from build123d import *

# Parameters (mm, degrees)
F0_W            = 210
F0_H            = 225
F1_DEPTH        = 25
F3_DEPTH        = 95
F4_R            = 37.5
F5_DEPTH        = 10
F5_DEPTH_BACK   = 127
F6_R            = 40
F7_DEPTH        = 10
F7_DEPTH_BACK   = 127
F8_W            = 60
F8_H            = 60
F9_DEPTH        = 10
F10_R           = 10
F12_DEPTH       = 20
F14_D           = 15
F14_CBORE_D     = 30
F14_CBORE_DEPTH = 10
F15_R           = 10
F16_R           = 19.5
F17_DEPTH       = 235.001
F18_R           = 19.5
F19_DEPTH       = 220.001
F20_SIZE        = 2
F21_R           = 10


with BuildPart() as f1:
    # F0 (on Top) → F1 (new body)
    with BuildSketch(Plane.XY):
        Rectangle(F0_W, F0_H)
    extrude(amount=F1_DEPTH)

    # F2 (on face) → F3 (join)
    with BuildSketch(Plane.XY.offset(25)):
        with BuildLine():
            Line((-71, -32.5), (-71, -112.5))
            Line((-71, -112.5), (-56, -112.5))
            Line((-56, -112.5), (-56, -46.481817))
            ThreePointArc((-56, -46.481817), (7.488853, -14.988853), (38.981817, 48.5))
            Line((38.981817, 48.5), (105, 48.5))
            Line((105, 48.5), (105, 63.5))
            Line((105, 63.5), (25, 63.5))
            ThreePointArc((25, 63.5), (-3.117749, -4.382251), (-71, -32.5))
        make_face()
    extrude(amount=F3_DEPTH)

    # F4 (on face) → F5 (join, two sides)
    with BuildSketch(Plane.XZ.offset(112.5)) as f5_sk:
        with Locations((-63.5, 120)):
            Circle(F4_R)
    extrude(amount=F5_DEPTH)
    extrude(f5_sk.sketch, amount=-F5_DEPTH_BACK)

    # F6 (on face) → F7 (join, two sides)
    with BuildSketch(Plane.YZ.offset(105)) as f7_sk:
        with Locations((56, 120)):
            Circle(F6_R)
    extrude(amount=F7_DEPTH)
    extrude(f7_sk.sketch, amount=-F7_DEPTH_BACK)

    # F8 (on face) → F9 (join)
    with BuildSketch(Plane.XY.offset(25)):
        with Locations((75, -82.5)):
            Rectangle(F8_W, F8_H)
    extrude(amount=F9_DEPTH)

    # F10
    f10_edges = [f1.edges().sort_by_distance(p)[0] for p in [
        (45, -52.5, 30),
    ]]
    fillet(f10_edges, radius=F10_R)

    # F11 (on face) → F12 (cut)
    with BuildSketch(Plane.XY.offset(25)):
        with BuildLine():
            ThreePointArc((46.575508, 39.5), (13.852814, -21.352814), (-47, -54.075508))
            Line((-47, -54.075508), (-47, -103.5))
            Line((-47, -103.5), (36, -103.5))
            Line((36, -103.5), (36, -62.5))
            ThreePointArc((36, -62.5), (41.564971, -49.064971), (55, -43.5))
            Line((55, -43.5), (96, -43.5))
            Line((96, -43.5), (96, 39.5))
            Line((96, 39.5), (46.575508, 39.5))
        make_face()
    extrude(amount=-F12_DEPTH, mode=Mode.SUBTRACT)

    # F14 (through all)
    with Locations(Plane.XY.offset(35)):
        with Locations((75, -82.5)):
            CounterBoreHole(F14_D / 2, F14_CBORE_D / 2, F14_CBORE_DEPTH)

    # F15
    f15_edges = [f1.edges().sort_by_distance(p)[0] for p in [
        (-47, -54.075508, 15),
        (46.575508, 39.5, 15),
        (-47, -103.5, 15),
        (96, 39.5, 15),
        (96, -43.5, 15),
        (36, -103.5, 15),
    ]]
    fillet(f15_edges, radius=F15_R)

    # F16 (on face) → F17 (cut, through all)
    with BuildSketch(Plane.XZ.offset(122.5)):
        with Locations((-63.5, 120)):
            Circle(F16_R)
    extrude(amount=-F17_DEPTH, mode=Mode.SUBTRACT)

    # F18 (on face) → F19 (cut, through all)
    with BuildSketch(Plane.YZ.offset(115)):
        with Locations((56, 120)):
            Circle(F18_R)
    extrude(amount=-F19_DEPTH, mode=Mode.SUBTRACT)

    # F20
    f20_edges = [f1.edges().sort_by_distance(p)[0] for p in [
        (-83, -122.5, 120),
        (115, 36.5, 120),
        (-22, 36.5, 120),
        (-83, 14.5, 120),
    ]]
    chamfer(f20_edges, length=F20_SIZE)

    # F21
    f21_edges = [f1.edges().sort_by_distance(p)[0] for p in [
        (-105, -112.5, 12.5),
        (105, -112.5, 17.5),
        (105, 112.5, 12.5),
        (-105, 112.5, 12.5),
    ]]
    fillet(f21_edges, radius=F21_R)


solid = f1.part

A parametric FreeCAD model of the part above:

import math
import FreeCAD as App
import Part
import Sketcher

V = App.Vector
Q = App.Units.Quantity


def edges_at(feature, points):
    """Names of the edges that pass closest to the given points."""
    edges = feature.Shape.Edges
    near = lambda p: min(range(len(edges)), key=lambda i: edges[i].distToShape(Part.Vertex(*p))[0])
    return sorted({f"Edge{near(p) + 1}" for p in points})


def add_polygon(sketch, points):
    """Adds a closed chain of lines whose ends are joined by coincident constraints."""
    first, n = sketch.GeometryCount, len(points)
    for a, b in zip(points, points[1:] + points[:1]):
        sketch.addGeometry(Part.LineSegment(App.Vector(*a, 0), App.Vector(*b, 0)), False)
    for i in range(n):
        sketch.addConstraint(Sketcher.Constraint("Coincident", first + i, 2, first + (i + 1) % n, 1))

doc = App.newDocument("Part")
params = doc.addObject("Spreadsheet::Sheet", "Params")
for row, (alias, value) in enumerate([
    ("sketch1_width", "210 mm"),
    ("sketch1_height", "225 mm"),
    ("pad1_length", "25 mm"),
    ("sketch2_radius", "111 mm"),
    ("sketch2_radius2", "96 mm"),
    ("sketch2_width", "15 mm"),
    ("sketch2_width2", "80 mm"),
    ("pad2_length", "95 mm"),
    ("sketch3_diameter", "75 mm"),
    ("pad3_length", "10 mm"),
    ("pad3_length2", "127 mm"),
    ("sketch4_diameter", "80 mm"),
    ("pad4_length", "10 mm"),
    ("pad4_length2", "127 mm"),
    ("sketch5_width", "60 mm"),
    ("pad5_length", "10 mm"),
    ("fillet_radius", "10 mm"),
    ("sketch6_radius", "120 mm"),
    ("sketch6_radius2", "18.999999 mm"),
    ("sketch6_width", "83 mm"),
    ("sketch6_width2", "41 mm"),
    ("pocket1_length", "20 mm"),
    ("sketch7_diameter", "15 mm"),
    ("hole_diameter", "15 mm"),
    ("hole_cbore_diameter", "30 mm"),
    ("hole_cbore_depth", "10 mm"),
    ("fillet2_radius", "10 mm"),
    ("sketch8_diameter", "39 mm"),
    ("sketch9_diameter", "39 mm"),
    ("chamfer_size", "2 mm"),
    ("fillet3_radius", "10 mm"),
], start=1):
    params.set(f"A{row}", alias)
    params.set(f"B{row}", "=" + value)
    params.setAlias(f"B{row}", alias)

body = doc.addObject("PartDesign::Body", "Body")

# Sketch on XY plane
sketch1 = doc.addObject("Sketcher::SketchObject", "Sketch")
body.addObject(sketch1)
sketch1.AttachmentSupport = (doc.XY_Plane, [""])
sketch1.MapMode = "FlatFace"
add_polygon(sketch1, [(-105, 112), (-105, -112), (105, -112), (105, 112)])  # lines 0-3
sketch1.addConstraint(Sketcher.Constraint("Vertical", 0))
sketch1.addConstraint(Sketcher.Constraint("Horizontal", 1))
sketch1.addConstraint(Sketcher.Constraint("Vertical", 2))
sketch1.addConstraint(Sketcher.Constraint("Horizontal", 3))
sketch1.addConstraint(Sketcher.Constraint("Symmetric", 0, 2, 2, 2, -1, 1))
sketch1.addConstraint(Sketcher.Constraint("DistanceX", 1, 1, 1, 2, Q("210 mm")))
sketch1.addConstraint(Sketcher.Constraint("DistanceY", 0, 2, 0, 1, Q("225 mm")))
sketch1.setExpression("Constraints[9]", "Params.sketch1_width")
sketch1.setExpression("Constraints[10]", "Params.sketch1_height")
pad1 = doc.addObject("PartDesign::Pad", "Pad")
body.addObject(pad1)
pad1.Profile = sketch1
pad1.setExpression("Length", "Params.pad1_length")

# Sketch on XY plane
sketch2 = doc.addObject("Sketcher::SketchObject", "Sketch001")
body.addObject(sketch2)
sketch2.AttachmentSupport = (doc.XY_Plane, [""])
sketch2.MapMode = "FlatFace"
sketch2.AttachmentOffset = App.Placement(V(0, 0, 25), App.Rotation())
sketch2.addGeometry(Part.LineSegment(V(-71, -32, 0), V(-71, -112, 0)), False)
sketch2.addGeometry(Part.LineSegment(V(-71, -112, 0), V(-56, -112, 0)), False)
sketch2.addGeometry(Part.LineSegment(V(-56, -112, 0), V(-56, -46, 0)), False)
sketch2.addGeometry(Part.ArcOfCircle(Part.Circle(V(-71, 63, 0), V(0, 0, 1), 111), math.radians(-82), math.radians(-8)), False)
sketch2.addGeometry(Part.LineSegment(V(39, 48, 0), V(105, 48, 0)), False)
sketch2.addGeometry(Part.LineSegment(V(105, 48, 0), V(105, 64, 0)), False)
sketch2.addGeometry(Part.LineSegment(V(105, 64, 0), V(25, 64, 0)), False)
sketch2.addGeometry(Part.ArcOfCircle(Part.Circle(V(-71, 63, 0), V(0, 0, 1), 96), math.radians(-90), math.radians(0)), False)
sketch2.addConstraint(Sketcher.Constraint("Coincident", 0, 2, 1, 1))
sketch2.addConstraint(Sketcher.Constraint("Coincident", 1, 2, 2, 1))
sketch2.addConstraint(Sketcher.Constraint("Coincident", 2, 2, 3, 1))
sketch2.addConstraint(Sketcher.Constraint("Coincident", 3, 2, 4, 1))
sketch2.addConstraint(Sketcher.Constraint("Coincident", 4, 2, 5, 1))
sketch2.addConstraint(Sketcher.Constraint("Coincident", 5, 2, 6, 1))
sketch2.addConstraint(Sketcher.Constraint("Coincident", 6, 2, 7, 2))
sketch2.addConstraint(Sketcher.Constraint("Coincident", 7, 1, 0, 1))
sketch2.addConstraint(Sketcher.Constraint("Vertical", 0))
sketch2.addConstraint(Sketcher.Constraint("Horizontal", 1))
sketch2.addConstraint(Sketcher.Constraint("Vertical", 2))
sketch2.addConstraint(Sketcher.Constraint("Horizontal", 4))
sketch2.addConstraint(Sketcher.Constraint("Vertical", 5))
sketch2.addConstraint(Sketcher.Constraint("Horizontal", 6))
sketch2.addConstraint(Sketcher.Constraint("Coincident", 7, 3, 3, 3))
sketch2.addConstraint(Sketcher.Constraint("Horizontal", 7, 3, 5, 2))
sketch2.addConstraint(Sketcher.Constraint("Vertical", 7, 3, 0, 2))
sketch2.addConstraint(Sketcher.Constraint("Equal", 6, 0))
sketch2.addConstraint(Sketcher.Constraint("Equal", 4, 2))
sketch2.addConstraint(Sketcher.Constraint("Radius", 3, Q("111 mm")))
sketch2.addConstraint(Sketcher.Constraint("Radius", 7, Q("96 mm")))
sketch2.addConstraint(Sketcher.Constraint("DistanceX", 1, 1, 1, 2, Q("15 mm")))
sketch2.addConstraint(Sketcher.Constraint("DistanceX", 6, 2, 6, 1, Q("80 mm")))
sketch2.addConstraint(Sketcher.Constraint("DistanceX", 3, 3, -1, 1, Q("71 mm")))
sketch2.addConstraint(Sketcher.Constraint("DistanceY", -1, 1, 3, 3, Q("63.5 mm")))
sketch2.setExpression("Constraints[19]", "Params.sketch2_radius")
sketch2.setExpression("Constraints[20]", "Params.sketch2_radius2")
sketch2.setExpression("Constraints[21]", "Params.sketch2_width")
sketch2.setExpression("Constraints[22]", "Params.sketch2_width2")
pad2 = doc.addObject("PartDesign::Pad", "Pad001")
body.addObject(pad2)
pad2.Profile = sketch2
pad2.setExpression("Length", "Params.pad2_length")

# Sketch on XZ plane
sketch3 = doc.addObject("Sketcher::SketchObject", "Sketch002")
body.addObject(sketch3)
sketch3.AttachmentSupport = (doc.XZ_Plane, [""])
sketch3.MapMode = "FlatFace"
sketch3.AttachmentOffset = App.Placement(V(0, 0, 112.5), App.Rotation())
sketch3.addGeometry(Part.Circle(V(-64, 120, 0), V(0, 0, 1), 38), False)
sketch3.addConstraint(Sketcher.Constraint("Diameter", 0, Q("75 mm")))
sketch3.addConstraint(Sketcher.Constraint("DistanceY", -1, 1, 0, 3, Q("120 mm")))
sketch3.addConstraint(Sketcher.Constraint("DistanceX", 0, 3, -1, 1, Q("63.5 mm")))
sketch3.setExpression("Constraints[0]", "Params.sketch3_diameter")
pad3 = doc.addObject("PartDesign::Pad", "Pad002")
body.addObject(pad3)
pad3.Profile = sketch3
pad3.Type = "TwoLengths"
pad3.setExpression("Length", "Params.pad3_length")
pad3.setExpression("Length2", "Params.pad3_length2")

# Sketch on YZ plane
sketch4 = doc.addObject("Sketcher::SketchObject", "Sketch003")
body.addObject(sketch4)
sketch4.AttachmentSupport = (doc.YZ_Plane, [""])
sketch4.MapMode = "FlatFace"
sketch4.AttachmentOffset = App.Placement(V(0, 0, 105), App.Rotation())
sketch4.addGeometry(Part.Circle(V(56, 120, 0), V(0, 0, 1), 40), False)
sketch4.addConstraint(Sketcher.Constraint("Diameter", 0, Q("80 mm")))
sketch4.addConstraint(Sketcher.Constraint("DistanceX", -1, 1, 0, 3, Q("56 mm")))
sketch4.addConstraint(Sketcher.Constraint("DistanceY", -1, 1, 0, 3, Q("120 mm")))
sketch4.setExpression("Constraints[0]", "Params.sketch4_diameter")
pad4 = doc.addObject("PartDesign::Pad", "Pad003")
body.addObject(pad4)
pad4.Profile = sketch4
pad4.Type = "TwoLengths"
pad4.setExpression("Length", "Params.pad4_length")
pad4.setExpression("Length2", "Params.pad4_length2")

# Sketch on XY plane
sketch5 = doc.addObject("Sketcher::SketchObject", "Sketch004")
body.addObject(sketch5)
sketch5.AttachmentSupport = (doc.XY_Plane, [""])
sketch5.MapMode = "FlatFace"
sketch5.AttachmentOffset = App.Placement(V(0, 0, 25), App.Rotation())
add_polygon(sketch5, [(45, -52), (45, -112), (105, -112), (105, -52)])  # lines 0-3
sketch5.addConstraint(Sketcher.Constraint("Vertical", 0))
sketch5.addConstraint(Sketcher.Constraint("Horizontal", 1))
sketch5.addConstraint(Sketcher.Constraint("Vertical", 2))
sketch5.addConstraint(Sketcher.Constraint("Horizontal", 3))
sketch5.addConstraint(Sketcher.Constraint("Equal", 3, 0))
sketch5.addConstraint(Sketcher.Constraint("DistanceX", 1, 1, 1, 2, Q("60 mm")))
sketch5.addConstraint(Sketcher.Constraint("DistanceX", -1, 1, 0, 2, Q("45 mm")))
sketch5.addConstraint(Sketcher.Constraint("DistanceY", 0, 2, -1, 1, Q("112.5 mm")))
sketch5.setExpression("Constraints[9]", "Params.sketch5_width")
pad5 = doc.addObject("PartDesign::Pad", "Pad004")
body.addObject(pad5)
pad5.Profile = sketch5
pad5.setExpression("Length", "Params.pad5_length")
doc.recompute()

fillet = doc.addObject("PartDesign::Fillet", "Fillet")
body.addObject(fillet)
fillet.Base = (pad5, edges_at(pad5, [(45, -52.5, 30)]))
fillet.setExpression("Radius", "Params.fillet_radius")

# Sketch on XY plane
sketch6 = doc.addObject("Sketcher::SketchObject", "Sketch005")
body.addObject(sketch6)
sketch6.AttachmentSupport = (doc.XY_Plane, [""])
sketch6.MapMode = "FlatFace"
sketch6.AttachmentOffset = App.Placement(V(0, 0, 25), App.Rotation())
sketch6.addGeometry(Part.ArcOfCircle(Part.Circle(V(-71, 63, 0), V(0, 0, 1), 120), math.radians(-78), math.radians(-12)), False)
sketch6.addGeometry(Part.LineSegment(V(-47, -54, 0), V(-47, -104, 0)), False)
sketch6.addGeometry(Part.LineSegment(V(-47, -104, 0), V(36, -104, 0)), False)
sketch6.addGeometry(Part.LineSegment(V(36, -104, 0), V(36, -62, 0)), False)
sketch6.addGeometry(Part.ArcOfCircle(Part.Circle(V(55, -62, 0), V(0, 0, 1), 19), math.radians(90), math.radians(180)), False)
sketch6.addGeometry(Part.LineSegment(V(55, -44, 0), V(96, -44, 0)), False)
sketch6.addGeometry(Part.LineSegment(V(96, -44, 0), V(96, 40, 0)), False)
sketch6.addGeometry(Part.LineSegment(V(96, 40, 0), V(47, 40, 0)), False)
sketch6.addConstraint(Sketcher.Constraint("Coincident", 0, 1, 1, 1))
sketch6.addConstraint(Sketcher.Constraint("Coincident", 1, 2, 2, 1))
sketch6.addConstraint(Sketcher.Constraint("Coincident", 2, 2, 3, 1))
sketch6.addConstraint(Sketcher.Constraint("Tangent", 3, 2, 4, 2))
sketch6.addConstraint(Sketcher.Constraint("Tangent", 4, 1, 5, 1))
sketch6.addConstraint(Sketcher.Constraint("Coincident", 5, 2, 6, 1))
sketch6.addConstraint(Sketcher.Constraint("Coincident", 6, 2, 7, 1))
sketch6.addConstraint(Sketcher.Constraint("Coincident", 7, 2, 0, 2))
sketch6.addConstraint(Sketcher.Constraint("Vertical", 1))
sketch6.addConstraint(Sketcher.Constraint("Horizontal", 2))
sketch6.addConstraint(Sketcher.Constraint("Vertical", 3))
sketch6.addConstraint(Sketcher.Constraint("Horizontal", 5))
sketch6.addConstraint(Sketcher.Constraint("Vertical", 6))
sketch6.addConstraint(Sketcher.Constraint("Horizontal", 7))
sketch6.addConstraint(Sketcher.Constraint("Equal", 7, 1))
sketch6.addConstraint(Sketcher.Constraint("Equal", 5, 3))
sketch6.addConstraint(Sketcher.Constraint("Equal", 2, 6))
sketch6.addConstraint(Sketcher.Constraint("Radius", 0, Q("120 mm")))
sketch6.addConstraint(Sketcher.Constraint("Radius", 4, Q("18.999999 mm")))
sketch6.addConstraint(Sketcher.Constraint("DistanceX", 2, 1, 2, 2, Q("83 mm")))
sketch6.addConstraint(Sketcher.Constraint("DistanceX", 5, 1, 5, 2, Q("41 mm")))
sketch6.addConstraint(Sketcher.Constraint("DistanceX", 0, 3, -1, 1, Q("71 mm")))
sketch6.addConstraint(Sketcher.Constraint("DistanceX", -1, 1, 4, 3, Q("54.999999 mm")))
sketch6.addConstraint(Sketcher.Constraint("DistanceY", -1, 1, 0, 3, Q("63.5 mm")))
sketch6.setExpression("Constraints[17]", "Params.sketch6_radius")
sketch6.setExpression("Constraints[18]", "Params.sketch6_radius2")
sketch6.setExpression("Constraints[19]", "Params.sketch6_width")
sketch6.setExpression("Constraints[20]", "Params.sketch6_width2")
pocket1 = doc.addObject("PartDesign::Pocket", "Pocket")
body.addObject(pocket1)
pocket1.Profile = sketch6
pocket1.setExpression("Length", "Params.pocket1_length")

# Sketch on XY plane
sketch7 = doc.addObject("Sketcher::SketchObject", "Sketch006")
body.addObject(sketch7)
sketch7.AttachmentSupport = (doc.XY_Plane, [""])
sketch7.MapMode = "FlatFace"
sketch7.AttachmentOffset = App.Placement(V(0, 0, 35), App.Rotation())
sketch7.addGeometry(Part.Circle(V(75, -82, 0), V(0, 0, 1), 8), False)
sketch7.addConstraint(Sketcher.Constraint("Diameter", 0, Q("15 mm")))
sketch7.addConstraint(Sketcher.Constraint("DistanceX", -1, 1, 0, 3, Q("75 mm")))
sketch7.addConstraint(Sketcher.Constraint("DistanceY", 0, 3, -1, 1, Q("82.5 mm")))
sketch7.setExpression("Constraints[0]", "Params.sketch7_diameter")
doc.recompute()
hole = doc.addObject("PartDesign::Hole", "Hole")
body.addObject(hole)
hole.Profile = sketch7
hole.ThreadType = "None"
hole.setExpression("Diameter", "Params.hole_diameter")
hole.DepthType = "ThroughAll"
hole.HoleCutType = "Counterbore"
hole.setExpression("HoleCutDiameter", "Params.hole_cbore_diameter")
hole.setExpression("HoleCutDepth", "Params.hole_cbore_depth")
doc.recompute()

fillet2 = doc.addObject("PartDesign::Fillet", "Fillet001")
body.addObject(fillet2)
fillet2.Base = (hole, edges_at(hole, [
    (-47, -54.076, 15),
    (46.576, 39.5, 15),
    (-47, -103.5, 15),
    (96, 39.5, 15),
    (96, -43.5, 15),
    (36, -103.5, 15),
]))
fillet2.setExpression("Radius", "Params.fillet2_radius")

# Sketch on XZ plane
sketch8 = doc.addObject("Sketcher::SketchObject", "Sketch007")
body.addObject(sketch8)
sketch8.AttachmentSupport = (doc.XZ_Plane, [""])
sketch8.MapMode = "FlatFace"
sketch8.AttachmentOffset = App.Placement(V(0, 0, 122.5), App.Rotation())
sketch8.addGeometry(Part.Circle(V(-64, 120, 0), V(0, 0, 1), 20), False)
sketch8.addConstraint(Sketcher.Constraint("Diameter", 0, Q("39 mm")))
sketch8.addConstraint(Sketcher.Constraint("DistanceY", -1, 1, 0, 3, Q("120 mm")))
sketch8.addConstraint(Sketcher.Constraint("DistanceX", 0, 3, -1, 1, Q("63.5 mm")))
sketch8.setExpression("Constraints[0]", "Params.sketch8_diameter")
pocket2 = doc.addObject("PartDesign::Pocket", "Pocket001")
body.addObject(pocket2)
pocket2.Profile = sketch8
pocket2.Type = "ThroughAll"

# Sketch on YZ plane
sketch9 = doc.addObject("Sketcher::SketchObject", "Sketch008")
body.addObject(sketch9)
sketch9.AttachmentSupport = (doc.YZ_Plane, [""])
sketch9.MapMode = "FlatFace"
sketch9.AttachmentOffset = App.Placement(V(0, 0, 115), App.Rotation())
sketch9.addGeometry(Part.Circle(V(56, 120, 0), V(0, 0, 1), 20), False)
sketch9.addConstraint(Sketcher.Constraint("Diameter", 0, Q("39 mm")))
sketch9.addConstraint(Sketcher.Constraint("DistanceX", -1, 1, 0, 3, Q("56 mm")))
sketch9.addConstraint(Sketcher.Constraint("DistanceY", -1, 1, 0, 3, Q("120 mm")))
sketch9.setExpression("Constraints[0]", "Params.sketch9_diameter")
pocket3 = doc.addObject("PartDesign::Pocket", "Pocket002")
body.addObject(pocket3)
pocket3.Profile = sketch9
pocket3.Type = "ThroughAll"
doc.recompute()

chamfer = doc.addObject("PartDesign::Chamfer", "Chamfer")
body.addObject(chamfer)
chamfer.Base = (pocket3, edges_at(pocket3, [
    (-83, -122.5, 120),
    (115, 36.5, 120),
    (-22, 36.5, 120),
    (-83, 14.5, 120),
]))
chamfer.setExpression("Size", "Params.chamfer_size")
doc.recompute()

fillet3 = doc.addObject("PartDesign::Fillet", "Fillet002")
body.addObject(fillet3)
fillet3.Base = (chamfer, edges_at(chamfer, [
    (-105, -112.5, 12.5),
    (105, -112.5, 17.5),
    (105, 112.5, 12.5),
    (-105, 112.5, 12.5),
]))
fillet3.setExpression("Radius", "Params.fillet3_radius")

doc.recompute()
